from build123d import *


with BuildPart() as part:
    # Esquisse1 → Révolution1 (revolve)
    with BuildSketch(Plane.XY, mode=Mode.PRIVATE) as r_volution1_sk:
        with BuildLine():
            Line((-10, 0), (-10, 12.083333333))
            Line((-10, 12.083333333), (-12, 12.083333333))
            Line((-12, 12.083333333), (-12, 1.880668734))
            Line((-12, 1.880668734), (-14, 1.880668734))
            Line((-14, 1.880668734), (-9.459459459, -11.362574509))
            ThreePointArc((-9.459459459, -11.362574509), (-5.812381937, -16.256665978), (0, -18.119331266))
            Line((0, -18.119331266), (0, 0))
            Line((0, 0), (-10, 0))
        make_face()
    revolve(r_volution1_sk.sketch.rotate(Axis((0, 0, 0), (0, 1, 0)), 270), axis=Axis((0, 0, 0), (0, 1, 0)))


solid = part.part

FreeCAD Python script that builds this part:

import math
import FreeCAD as App
import Part
import Sketcher

V = App.Vector
Q = App.Units.Quantity

doc = App.newDocument("Part")
params = doc.addObject("Spreadsheet::Sheet", "Params")
for row, (alias, value) in enumerate([
    ("sketch1_radius", "10 mm"),
    ("sketch1_width", "2 mm"),
    ("sketch1_width2", "10 mm"),
    ("sketch1_length", "14 mm"),
    ("revolution_angle", "360 deg"),
], start=1):
    params.set(f"A{row}", alias)
    params.set(f"B{row}", "=" + value)
    params.setAlias(f"B{row}", alias)

body = doc.addObject("PartDesign::Body", "Body")

sketch1 = doc.addObject("Sketcher::SketchObject", "Sketch")
body.addObject(sketch1)
sketch1.AttachmentSupport = (doc.XY_Plane, [""])
sketch1.MapMode = "FlatFace"
sketch1.addGeometry(Part.LineSegment(V(-10, 0, 0), V(-10, 12.1, 0)), False)
sketch1.addGeometry(Part.LineSegment(V(-10, 12.1, 0), V(-12, 12.1, 0)), False)
sketch1.addGeometry(Part.LineSegment(V(-12, 12.1, 0), V(-12, 1.9, 0)), False)
sketch1.addGeometry(Part.LineSegment(V(-12, 1.9, 0), V(-14, 1.9, 0)), False)
sketch1.addGeometry(Part.LineSegment(V(-14, 1.9, 0), V(-9.5, -11.4, 0)), False)
sketch1.addGeometry(Part.ArcOfCircle(Part.Circle(V(0, -8.1, 0), V(0, 0, 1), 10), math.radians(-161), math.radians(-90)), False)
sketch1.addGeometry(Part.LineSegment(V(0, -18.1, 0), V(0, 0, 0)), False)
sketch1.addGeometry(Part.LineSegment(V(0, 0, 0), V(-10, 0, 0)), False)
sketch1.addConstraint(Sketcher.Constraint("Coincident", 0, 2, 1, 1))
sketch1.addConstraint(Sketcher.Constraint("Coincident", 1, 2, 2, 1))
sketch1.addConstraint(Sketcher.Constraint("Coincident", 2, 2, 3, 1))
sketch1.addConstraint(Sketcher.Constraint("Coincident", 3, 2, 4, 1))
sketch1.addConstraint(Sketcher.Constraint("Tangent", 4, 2, 5, 1))
sketch1.addConstraint(Sketcher.Constraint("Coincident", 5, 2, 6, 1))
sketch1.addConstraint(Sketcher.Constraint("Coincident", 6, 2, 7, 1))
sketch1.addConstraint(Sketcher.Constraint("Coincident", 7, 2, 0, 1))
sketch1.addConstraint(Sketcher.Constraint("Vertical", 0))
sketch1.addConstraint(Sketcher.Constraint("Horizontal", 1))
sketch1.addConstraint(Sketcher.Constraint("Vertical", 2))
sketch1.addConstraint(Sketcher.Constraint("Horizontal", 3))
sketch1.addConstraint(Sketcher.Constraint("Vertical", 6))
sketch1.addConstraint(Sketcher.Constraint("Horizontal", 7))
sketch1.addConstraint(Sketcher.Constraint("Coincident", 6, 2, -1, 1))
sketch1.addConstraint(Sketcher.Constraint("PointOnObject", 5, 3, -2))
sketch1.addConstraint(Sketcher.Constraint("Equal", 1, 3))
sketch1.addConstraint(Sketcher.Constraint("Radius", 5, Q("10 mm")))
sketch1.addConstraint(Sketcher.Constraint("DistanceX", 1, 2, 1, 1, Q("2 mm")))
sketch1.addConstraint(Sketcher.Constraint("DistanceX", 7, 2, 7, 1, Q("10 mm")))
sketch1.addConstraint(Sketcher.Constraint("Distance", 4, Q("14 mm")))
sketch1.addConstraint(Sketcher.Constraint("DistanceY", 6, 1, 6, 2, Q("18.119331 mm")))
sketch1.addConstraint(Sketcher.Constraint("DistanceY", 0, 1, 0, 2, Q("12.083333 mm")))
sketch1.setExpression("Constraints[17]", "Params.sketch1_radius")
sketch1.setExpression("Constraints[18]", "Params.sketch1_width")
sketch1.setExpression("Constraints[19]", "Params.sketch1_width2")
sketch1.setExpression("Constraints[20]", "Params.sketch1_length")
revolution = doc.addObject("PartDesign::Revolution", "Revolution")
body.addObject(revolution)
revolution.Profile = sketch1
revolution.ReferenceAxis = (sketch1, ["V_Axis"])
revolution.setExpression("Angle", "Params.revolution_angle")

doc.recompute()
